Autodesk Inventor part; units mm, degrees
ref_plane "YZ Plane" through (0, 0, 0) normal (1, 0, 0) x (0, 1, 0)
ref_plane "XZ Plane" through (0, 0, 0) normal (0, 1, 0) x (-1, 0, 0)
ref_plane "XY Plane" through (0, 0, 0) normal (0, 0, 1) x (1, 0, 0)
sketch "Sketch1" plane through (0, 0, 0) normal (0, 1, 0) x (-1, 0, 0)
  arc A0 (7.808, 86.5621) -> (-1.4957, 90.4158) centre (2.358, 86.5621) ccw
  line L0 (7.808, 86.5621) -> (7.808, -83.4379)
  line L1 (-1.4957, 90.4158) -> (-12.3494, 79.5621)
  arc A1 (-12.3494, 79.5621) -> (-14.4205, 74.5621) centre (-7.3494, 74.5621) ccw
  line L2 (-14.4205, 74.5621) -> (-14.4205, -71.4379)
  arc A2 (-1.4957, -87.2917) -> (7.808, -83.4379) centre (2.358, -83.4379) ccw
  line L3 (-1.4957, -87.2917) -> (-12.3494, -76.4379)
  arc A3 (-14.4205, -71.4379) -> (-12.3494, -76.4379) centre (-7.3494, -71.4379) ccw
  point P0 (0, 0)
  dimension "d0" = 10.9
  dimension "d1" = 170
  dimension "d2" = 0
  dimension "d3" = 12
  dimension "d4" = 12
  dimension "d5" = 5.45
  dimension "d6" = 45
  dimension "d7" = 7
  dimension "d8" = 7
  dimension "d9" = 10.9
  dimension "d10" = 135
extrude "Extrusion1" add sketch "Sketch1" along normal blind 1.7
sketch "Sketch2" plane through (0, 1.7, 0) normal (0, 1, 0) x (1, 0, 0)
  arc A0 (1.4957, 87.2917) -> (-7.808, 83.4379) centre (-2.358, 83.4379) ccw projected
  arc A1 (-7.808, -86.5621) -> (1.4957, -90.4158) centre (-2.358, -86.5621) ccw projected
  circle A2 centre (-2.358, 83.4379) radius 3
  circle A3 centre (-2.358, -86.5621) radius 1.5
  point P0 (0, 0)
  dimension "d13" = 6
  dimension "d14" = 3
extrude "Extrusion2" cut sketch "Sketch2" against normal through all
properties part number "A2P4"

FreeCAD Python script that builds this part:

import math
import FreeCAD as App
import Part
import Sketcher

V = App.Vector
Q = App.Units.Quantity

doc = App.newDocument("Part")
body = doc.addObject("PartDesign::Body", "Body")

# Sketch on XZ plane
sketch1 = body.newObject("Sketcher::SketchObject", "Sketch")
sketch1.AttachmentSupport = (doc.getObject("XZ_Plane"), [""])
sketch1.MapMode = "FlatFace"
sketch1.addGeometry([
    Part.LineSegment(V(-7.808, -83.4379, 0), V(-7.808, 86.5621, 0)),  # 0
    Part.ArcOfCircle(Part.Circle(V(-2.358, 86.5621, 0), V(0, 0, 1), 5.45), math.radians(45), math.radians(180)),  # 1
    Part.LineSegment(V(1.4957, 90.4158, 0), V(12.3494, 79.5621, 0)),  # 2
    Part.ArcOfCircle(Part.Circle(V(7.3494, 74.5621, 0), V(0, 0, 1), 7.071068), math.radians(0), math.radians(45)),  # 3
    Part.LineSegment(V(14.4205, 74.5621, 0), V(14.4205, -71.4379, 0)),  # 4
    Part.ArcOfCircle(Part.Circle(V(7.3494, -71.4379, 0), V(0, 0, 1), 7.0711), math.radians(-45), math.radians(0)),  # 5
    Part.LineSegment(V(12.3494, -76.4379, 0), V(1.4957, -87.2917, 0)),  # 6
    Part.ArcOfCircle(Part.Circle(V(-2.358, -83.4379, 0), V(0, 0, 1), 5.450026), math.radians(180), math.radians(314.999257)),  # 7
], False)
sketch1.addConstraint([
    Sketcher.Constraint("Tangent", 0, 2, 1, 2),
    Sketcher.Constraint("Tangent", 1, 1, 2, 1),
    Sketcher.Constraint("Tangent", 2, 2, 3, 2),
    Sketcher.Constraint("Tangent", 3, 1, 4, 1),
    Sketcher.Constraint("Tangent", 4, 2, 5, 2),
    Sketcher.Constraint("Tangent", 5, 1, 6, 1),
    Sketcher.Constraint("Tangent", 6, 2, 7, 2),
    Sketcher.Constraint("Tangent", 7, 1, 0, 1),
    Sketcher.Constraint("Vertical", 0),
    Sketcher.Constraint("Vertical", 4),
    Sketcher.Constraint("Equal", 3, 5),
    Sketcher.Constraint("Equal", 1, 7),
    Sketcher.Constraint("Perpendicular", 2, 6),
    Sketcher.Constraint("Vertical", 2, 2, 5, 1),
    Sketcher.Constraint("DistanceY", 0, 1, 0, 2, Q("170 mm")),
    Sketcher.Constraint("Radius", 1, Q("5.45 mm")),
    Sketcher.Constraint("DistanceY", 3, 3, 1, 3, Q("12 mm")),
    Sketcher.Constraint("DistanceY", 2, 2, 1, 3, Q("7 mm")),
    Sketcher.Constraint("DistanceX", 1, 3, -1, 1, Q("2.358 mm")),
    Sketcher.Constraint("DistanceY", -1, 1, 1, 3, Q("86.562 mm")),
])
pad1 = body.newObject("PartDesign::Pad", "Pad")
pad1.Profile = sketch1
pad1.Length = 1.7
pad1.Reversed = True

# Sketch on XZ plane
sketch2 = body.newObject("Sketcher::SketchObject", "Sketch001")
sketch2.AttachmentSupport = (doc.getObject("XZ_Plane"), [""])
sketch2.MapMode = "FlatFace"
sketch2.AttachmentOffset = App.Placement(V(0, 0, -1.7), App.Rotation())
sketch2.addGeometry([
    Part.Circle(V(-2.358, -83.4379, 0), V(0, 0, 1), 3),
    Part.Circle(V(-2.358, 86.5621, 0), V(0, 0, 1), 1.5),
], False)
sketch2.addConstraint([
    Sketcher.Constraint("Vertical", 0, 3, 1, 3),
    Sketcher.Constraint("Diameter", 0, Q("6 mm")),
    Sketcher.Constraint("Diameter", 1, Q("3 mm")),
    Sketcher.Constraint("DistanceY", 0, 3, 1, 3, Q("170 mm")),
    Sketcher.Constraint("DistanceX", 0, 3, -1, 1, Q("2.358 mm")),
    Sketcher.Constraint("DistanceY", 0, 3, -1, 1, Q("83.438 mm")),
])
pocket1 = body.newObject("PartDesign::Pocket", "Pocket")
pocket1.Profile = sketch2
pocket1.Type = "ThroughAll"
pocket1.Reversed = True

doc.recompute()
